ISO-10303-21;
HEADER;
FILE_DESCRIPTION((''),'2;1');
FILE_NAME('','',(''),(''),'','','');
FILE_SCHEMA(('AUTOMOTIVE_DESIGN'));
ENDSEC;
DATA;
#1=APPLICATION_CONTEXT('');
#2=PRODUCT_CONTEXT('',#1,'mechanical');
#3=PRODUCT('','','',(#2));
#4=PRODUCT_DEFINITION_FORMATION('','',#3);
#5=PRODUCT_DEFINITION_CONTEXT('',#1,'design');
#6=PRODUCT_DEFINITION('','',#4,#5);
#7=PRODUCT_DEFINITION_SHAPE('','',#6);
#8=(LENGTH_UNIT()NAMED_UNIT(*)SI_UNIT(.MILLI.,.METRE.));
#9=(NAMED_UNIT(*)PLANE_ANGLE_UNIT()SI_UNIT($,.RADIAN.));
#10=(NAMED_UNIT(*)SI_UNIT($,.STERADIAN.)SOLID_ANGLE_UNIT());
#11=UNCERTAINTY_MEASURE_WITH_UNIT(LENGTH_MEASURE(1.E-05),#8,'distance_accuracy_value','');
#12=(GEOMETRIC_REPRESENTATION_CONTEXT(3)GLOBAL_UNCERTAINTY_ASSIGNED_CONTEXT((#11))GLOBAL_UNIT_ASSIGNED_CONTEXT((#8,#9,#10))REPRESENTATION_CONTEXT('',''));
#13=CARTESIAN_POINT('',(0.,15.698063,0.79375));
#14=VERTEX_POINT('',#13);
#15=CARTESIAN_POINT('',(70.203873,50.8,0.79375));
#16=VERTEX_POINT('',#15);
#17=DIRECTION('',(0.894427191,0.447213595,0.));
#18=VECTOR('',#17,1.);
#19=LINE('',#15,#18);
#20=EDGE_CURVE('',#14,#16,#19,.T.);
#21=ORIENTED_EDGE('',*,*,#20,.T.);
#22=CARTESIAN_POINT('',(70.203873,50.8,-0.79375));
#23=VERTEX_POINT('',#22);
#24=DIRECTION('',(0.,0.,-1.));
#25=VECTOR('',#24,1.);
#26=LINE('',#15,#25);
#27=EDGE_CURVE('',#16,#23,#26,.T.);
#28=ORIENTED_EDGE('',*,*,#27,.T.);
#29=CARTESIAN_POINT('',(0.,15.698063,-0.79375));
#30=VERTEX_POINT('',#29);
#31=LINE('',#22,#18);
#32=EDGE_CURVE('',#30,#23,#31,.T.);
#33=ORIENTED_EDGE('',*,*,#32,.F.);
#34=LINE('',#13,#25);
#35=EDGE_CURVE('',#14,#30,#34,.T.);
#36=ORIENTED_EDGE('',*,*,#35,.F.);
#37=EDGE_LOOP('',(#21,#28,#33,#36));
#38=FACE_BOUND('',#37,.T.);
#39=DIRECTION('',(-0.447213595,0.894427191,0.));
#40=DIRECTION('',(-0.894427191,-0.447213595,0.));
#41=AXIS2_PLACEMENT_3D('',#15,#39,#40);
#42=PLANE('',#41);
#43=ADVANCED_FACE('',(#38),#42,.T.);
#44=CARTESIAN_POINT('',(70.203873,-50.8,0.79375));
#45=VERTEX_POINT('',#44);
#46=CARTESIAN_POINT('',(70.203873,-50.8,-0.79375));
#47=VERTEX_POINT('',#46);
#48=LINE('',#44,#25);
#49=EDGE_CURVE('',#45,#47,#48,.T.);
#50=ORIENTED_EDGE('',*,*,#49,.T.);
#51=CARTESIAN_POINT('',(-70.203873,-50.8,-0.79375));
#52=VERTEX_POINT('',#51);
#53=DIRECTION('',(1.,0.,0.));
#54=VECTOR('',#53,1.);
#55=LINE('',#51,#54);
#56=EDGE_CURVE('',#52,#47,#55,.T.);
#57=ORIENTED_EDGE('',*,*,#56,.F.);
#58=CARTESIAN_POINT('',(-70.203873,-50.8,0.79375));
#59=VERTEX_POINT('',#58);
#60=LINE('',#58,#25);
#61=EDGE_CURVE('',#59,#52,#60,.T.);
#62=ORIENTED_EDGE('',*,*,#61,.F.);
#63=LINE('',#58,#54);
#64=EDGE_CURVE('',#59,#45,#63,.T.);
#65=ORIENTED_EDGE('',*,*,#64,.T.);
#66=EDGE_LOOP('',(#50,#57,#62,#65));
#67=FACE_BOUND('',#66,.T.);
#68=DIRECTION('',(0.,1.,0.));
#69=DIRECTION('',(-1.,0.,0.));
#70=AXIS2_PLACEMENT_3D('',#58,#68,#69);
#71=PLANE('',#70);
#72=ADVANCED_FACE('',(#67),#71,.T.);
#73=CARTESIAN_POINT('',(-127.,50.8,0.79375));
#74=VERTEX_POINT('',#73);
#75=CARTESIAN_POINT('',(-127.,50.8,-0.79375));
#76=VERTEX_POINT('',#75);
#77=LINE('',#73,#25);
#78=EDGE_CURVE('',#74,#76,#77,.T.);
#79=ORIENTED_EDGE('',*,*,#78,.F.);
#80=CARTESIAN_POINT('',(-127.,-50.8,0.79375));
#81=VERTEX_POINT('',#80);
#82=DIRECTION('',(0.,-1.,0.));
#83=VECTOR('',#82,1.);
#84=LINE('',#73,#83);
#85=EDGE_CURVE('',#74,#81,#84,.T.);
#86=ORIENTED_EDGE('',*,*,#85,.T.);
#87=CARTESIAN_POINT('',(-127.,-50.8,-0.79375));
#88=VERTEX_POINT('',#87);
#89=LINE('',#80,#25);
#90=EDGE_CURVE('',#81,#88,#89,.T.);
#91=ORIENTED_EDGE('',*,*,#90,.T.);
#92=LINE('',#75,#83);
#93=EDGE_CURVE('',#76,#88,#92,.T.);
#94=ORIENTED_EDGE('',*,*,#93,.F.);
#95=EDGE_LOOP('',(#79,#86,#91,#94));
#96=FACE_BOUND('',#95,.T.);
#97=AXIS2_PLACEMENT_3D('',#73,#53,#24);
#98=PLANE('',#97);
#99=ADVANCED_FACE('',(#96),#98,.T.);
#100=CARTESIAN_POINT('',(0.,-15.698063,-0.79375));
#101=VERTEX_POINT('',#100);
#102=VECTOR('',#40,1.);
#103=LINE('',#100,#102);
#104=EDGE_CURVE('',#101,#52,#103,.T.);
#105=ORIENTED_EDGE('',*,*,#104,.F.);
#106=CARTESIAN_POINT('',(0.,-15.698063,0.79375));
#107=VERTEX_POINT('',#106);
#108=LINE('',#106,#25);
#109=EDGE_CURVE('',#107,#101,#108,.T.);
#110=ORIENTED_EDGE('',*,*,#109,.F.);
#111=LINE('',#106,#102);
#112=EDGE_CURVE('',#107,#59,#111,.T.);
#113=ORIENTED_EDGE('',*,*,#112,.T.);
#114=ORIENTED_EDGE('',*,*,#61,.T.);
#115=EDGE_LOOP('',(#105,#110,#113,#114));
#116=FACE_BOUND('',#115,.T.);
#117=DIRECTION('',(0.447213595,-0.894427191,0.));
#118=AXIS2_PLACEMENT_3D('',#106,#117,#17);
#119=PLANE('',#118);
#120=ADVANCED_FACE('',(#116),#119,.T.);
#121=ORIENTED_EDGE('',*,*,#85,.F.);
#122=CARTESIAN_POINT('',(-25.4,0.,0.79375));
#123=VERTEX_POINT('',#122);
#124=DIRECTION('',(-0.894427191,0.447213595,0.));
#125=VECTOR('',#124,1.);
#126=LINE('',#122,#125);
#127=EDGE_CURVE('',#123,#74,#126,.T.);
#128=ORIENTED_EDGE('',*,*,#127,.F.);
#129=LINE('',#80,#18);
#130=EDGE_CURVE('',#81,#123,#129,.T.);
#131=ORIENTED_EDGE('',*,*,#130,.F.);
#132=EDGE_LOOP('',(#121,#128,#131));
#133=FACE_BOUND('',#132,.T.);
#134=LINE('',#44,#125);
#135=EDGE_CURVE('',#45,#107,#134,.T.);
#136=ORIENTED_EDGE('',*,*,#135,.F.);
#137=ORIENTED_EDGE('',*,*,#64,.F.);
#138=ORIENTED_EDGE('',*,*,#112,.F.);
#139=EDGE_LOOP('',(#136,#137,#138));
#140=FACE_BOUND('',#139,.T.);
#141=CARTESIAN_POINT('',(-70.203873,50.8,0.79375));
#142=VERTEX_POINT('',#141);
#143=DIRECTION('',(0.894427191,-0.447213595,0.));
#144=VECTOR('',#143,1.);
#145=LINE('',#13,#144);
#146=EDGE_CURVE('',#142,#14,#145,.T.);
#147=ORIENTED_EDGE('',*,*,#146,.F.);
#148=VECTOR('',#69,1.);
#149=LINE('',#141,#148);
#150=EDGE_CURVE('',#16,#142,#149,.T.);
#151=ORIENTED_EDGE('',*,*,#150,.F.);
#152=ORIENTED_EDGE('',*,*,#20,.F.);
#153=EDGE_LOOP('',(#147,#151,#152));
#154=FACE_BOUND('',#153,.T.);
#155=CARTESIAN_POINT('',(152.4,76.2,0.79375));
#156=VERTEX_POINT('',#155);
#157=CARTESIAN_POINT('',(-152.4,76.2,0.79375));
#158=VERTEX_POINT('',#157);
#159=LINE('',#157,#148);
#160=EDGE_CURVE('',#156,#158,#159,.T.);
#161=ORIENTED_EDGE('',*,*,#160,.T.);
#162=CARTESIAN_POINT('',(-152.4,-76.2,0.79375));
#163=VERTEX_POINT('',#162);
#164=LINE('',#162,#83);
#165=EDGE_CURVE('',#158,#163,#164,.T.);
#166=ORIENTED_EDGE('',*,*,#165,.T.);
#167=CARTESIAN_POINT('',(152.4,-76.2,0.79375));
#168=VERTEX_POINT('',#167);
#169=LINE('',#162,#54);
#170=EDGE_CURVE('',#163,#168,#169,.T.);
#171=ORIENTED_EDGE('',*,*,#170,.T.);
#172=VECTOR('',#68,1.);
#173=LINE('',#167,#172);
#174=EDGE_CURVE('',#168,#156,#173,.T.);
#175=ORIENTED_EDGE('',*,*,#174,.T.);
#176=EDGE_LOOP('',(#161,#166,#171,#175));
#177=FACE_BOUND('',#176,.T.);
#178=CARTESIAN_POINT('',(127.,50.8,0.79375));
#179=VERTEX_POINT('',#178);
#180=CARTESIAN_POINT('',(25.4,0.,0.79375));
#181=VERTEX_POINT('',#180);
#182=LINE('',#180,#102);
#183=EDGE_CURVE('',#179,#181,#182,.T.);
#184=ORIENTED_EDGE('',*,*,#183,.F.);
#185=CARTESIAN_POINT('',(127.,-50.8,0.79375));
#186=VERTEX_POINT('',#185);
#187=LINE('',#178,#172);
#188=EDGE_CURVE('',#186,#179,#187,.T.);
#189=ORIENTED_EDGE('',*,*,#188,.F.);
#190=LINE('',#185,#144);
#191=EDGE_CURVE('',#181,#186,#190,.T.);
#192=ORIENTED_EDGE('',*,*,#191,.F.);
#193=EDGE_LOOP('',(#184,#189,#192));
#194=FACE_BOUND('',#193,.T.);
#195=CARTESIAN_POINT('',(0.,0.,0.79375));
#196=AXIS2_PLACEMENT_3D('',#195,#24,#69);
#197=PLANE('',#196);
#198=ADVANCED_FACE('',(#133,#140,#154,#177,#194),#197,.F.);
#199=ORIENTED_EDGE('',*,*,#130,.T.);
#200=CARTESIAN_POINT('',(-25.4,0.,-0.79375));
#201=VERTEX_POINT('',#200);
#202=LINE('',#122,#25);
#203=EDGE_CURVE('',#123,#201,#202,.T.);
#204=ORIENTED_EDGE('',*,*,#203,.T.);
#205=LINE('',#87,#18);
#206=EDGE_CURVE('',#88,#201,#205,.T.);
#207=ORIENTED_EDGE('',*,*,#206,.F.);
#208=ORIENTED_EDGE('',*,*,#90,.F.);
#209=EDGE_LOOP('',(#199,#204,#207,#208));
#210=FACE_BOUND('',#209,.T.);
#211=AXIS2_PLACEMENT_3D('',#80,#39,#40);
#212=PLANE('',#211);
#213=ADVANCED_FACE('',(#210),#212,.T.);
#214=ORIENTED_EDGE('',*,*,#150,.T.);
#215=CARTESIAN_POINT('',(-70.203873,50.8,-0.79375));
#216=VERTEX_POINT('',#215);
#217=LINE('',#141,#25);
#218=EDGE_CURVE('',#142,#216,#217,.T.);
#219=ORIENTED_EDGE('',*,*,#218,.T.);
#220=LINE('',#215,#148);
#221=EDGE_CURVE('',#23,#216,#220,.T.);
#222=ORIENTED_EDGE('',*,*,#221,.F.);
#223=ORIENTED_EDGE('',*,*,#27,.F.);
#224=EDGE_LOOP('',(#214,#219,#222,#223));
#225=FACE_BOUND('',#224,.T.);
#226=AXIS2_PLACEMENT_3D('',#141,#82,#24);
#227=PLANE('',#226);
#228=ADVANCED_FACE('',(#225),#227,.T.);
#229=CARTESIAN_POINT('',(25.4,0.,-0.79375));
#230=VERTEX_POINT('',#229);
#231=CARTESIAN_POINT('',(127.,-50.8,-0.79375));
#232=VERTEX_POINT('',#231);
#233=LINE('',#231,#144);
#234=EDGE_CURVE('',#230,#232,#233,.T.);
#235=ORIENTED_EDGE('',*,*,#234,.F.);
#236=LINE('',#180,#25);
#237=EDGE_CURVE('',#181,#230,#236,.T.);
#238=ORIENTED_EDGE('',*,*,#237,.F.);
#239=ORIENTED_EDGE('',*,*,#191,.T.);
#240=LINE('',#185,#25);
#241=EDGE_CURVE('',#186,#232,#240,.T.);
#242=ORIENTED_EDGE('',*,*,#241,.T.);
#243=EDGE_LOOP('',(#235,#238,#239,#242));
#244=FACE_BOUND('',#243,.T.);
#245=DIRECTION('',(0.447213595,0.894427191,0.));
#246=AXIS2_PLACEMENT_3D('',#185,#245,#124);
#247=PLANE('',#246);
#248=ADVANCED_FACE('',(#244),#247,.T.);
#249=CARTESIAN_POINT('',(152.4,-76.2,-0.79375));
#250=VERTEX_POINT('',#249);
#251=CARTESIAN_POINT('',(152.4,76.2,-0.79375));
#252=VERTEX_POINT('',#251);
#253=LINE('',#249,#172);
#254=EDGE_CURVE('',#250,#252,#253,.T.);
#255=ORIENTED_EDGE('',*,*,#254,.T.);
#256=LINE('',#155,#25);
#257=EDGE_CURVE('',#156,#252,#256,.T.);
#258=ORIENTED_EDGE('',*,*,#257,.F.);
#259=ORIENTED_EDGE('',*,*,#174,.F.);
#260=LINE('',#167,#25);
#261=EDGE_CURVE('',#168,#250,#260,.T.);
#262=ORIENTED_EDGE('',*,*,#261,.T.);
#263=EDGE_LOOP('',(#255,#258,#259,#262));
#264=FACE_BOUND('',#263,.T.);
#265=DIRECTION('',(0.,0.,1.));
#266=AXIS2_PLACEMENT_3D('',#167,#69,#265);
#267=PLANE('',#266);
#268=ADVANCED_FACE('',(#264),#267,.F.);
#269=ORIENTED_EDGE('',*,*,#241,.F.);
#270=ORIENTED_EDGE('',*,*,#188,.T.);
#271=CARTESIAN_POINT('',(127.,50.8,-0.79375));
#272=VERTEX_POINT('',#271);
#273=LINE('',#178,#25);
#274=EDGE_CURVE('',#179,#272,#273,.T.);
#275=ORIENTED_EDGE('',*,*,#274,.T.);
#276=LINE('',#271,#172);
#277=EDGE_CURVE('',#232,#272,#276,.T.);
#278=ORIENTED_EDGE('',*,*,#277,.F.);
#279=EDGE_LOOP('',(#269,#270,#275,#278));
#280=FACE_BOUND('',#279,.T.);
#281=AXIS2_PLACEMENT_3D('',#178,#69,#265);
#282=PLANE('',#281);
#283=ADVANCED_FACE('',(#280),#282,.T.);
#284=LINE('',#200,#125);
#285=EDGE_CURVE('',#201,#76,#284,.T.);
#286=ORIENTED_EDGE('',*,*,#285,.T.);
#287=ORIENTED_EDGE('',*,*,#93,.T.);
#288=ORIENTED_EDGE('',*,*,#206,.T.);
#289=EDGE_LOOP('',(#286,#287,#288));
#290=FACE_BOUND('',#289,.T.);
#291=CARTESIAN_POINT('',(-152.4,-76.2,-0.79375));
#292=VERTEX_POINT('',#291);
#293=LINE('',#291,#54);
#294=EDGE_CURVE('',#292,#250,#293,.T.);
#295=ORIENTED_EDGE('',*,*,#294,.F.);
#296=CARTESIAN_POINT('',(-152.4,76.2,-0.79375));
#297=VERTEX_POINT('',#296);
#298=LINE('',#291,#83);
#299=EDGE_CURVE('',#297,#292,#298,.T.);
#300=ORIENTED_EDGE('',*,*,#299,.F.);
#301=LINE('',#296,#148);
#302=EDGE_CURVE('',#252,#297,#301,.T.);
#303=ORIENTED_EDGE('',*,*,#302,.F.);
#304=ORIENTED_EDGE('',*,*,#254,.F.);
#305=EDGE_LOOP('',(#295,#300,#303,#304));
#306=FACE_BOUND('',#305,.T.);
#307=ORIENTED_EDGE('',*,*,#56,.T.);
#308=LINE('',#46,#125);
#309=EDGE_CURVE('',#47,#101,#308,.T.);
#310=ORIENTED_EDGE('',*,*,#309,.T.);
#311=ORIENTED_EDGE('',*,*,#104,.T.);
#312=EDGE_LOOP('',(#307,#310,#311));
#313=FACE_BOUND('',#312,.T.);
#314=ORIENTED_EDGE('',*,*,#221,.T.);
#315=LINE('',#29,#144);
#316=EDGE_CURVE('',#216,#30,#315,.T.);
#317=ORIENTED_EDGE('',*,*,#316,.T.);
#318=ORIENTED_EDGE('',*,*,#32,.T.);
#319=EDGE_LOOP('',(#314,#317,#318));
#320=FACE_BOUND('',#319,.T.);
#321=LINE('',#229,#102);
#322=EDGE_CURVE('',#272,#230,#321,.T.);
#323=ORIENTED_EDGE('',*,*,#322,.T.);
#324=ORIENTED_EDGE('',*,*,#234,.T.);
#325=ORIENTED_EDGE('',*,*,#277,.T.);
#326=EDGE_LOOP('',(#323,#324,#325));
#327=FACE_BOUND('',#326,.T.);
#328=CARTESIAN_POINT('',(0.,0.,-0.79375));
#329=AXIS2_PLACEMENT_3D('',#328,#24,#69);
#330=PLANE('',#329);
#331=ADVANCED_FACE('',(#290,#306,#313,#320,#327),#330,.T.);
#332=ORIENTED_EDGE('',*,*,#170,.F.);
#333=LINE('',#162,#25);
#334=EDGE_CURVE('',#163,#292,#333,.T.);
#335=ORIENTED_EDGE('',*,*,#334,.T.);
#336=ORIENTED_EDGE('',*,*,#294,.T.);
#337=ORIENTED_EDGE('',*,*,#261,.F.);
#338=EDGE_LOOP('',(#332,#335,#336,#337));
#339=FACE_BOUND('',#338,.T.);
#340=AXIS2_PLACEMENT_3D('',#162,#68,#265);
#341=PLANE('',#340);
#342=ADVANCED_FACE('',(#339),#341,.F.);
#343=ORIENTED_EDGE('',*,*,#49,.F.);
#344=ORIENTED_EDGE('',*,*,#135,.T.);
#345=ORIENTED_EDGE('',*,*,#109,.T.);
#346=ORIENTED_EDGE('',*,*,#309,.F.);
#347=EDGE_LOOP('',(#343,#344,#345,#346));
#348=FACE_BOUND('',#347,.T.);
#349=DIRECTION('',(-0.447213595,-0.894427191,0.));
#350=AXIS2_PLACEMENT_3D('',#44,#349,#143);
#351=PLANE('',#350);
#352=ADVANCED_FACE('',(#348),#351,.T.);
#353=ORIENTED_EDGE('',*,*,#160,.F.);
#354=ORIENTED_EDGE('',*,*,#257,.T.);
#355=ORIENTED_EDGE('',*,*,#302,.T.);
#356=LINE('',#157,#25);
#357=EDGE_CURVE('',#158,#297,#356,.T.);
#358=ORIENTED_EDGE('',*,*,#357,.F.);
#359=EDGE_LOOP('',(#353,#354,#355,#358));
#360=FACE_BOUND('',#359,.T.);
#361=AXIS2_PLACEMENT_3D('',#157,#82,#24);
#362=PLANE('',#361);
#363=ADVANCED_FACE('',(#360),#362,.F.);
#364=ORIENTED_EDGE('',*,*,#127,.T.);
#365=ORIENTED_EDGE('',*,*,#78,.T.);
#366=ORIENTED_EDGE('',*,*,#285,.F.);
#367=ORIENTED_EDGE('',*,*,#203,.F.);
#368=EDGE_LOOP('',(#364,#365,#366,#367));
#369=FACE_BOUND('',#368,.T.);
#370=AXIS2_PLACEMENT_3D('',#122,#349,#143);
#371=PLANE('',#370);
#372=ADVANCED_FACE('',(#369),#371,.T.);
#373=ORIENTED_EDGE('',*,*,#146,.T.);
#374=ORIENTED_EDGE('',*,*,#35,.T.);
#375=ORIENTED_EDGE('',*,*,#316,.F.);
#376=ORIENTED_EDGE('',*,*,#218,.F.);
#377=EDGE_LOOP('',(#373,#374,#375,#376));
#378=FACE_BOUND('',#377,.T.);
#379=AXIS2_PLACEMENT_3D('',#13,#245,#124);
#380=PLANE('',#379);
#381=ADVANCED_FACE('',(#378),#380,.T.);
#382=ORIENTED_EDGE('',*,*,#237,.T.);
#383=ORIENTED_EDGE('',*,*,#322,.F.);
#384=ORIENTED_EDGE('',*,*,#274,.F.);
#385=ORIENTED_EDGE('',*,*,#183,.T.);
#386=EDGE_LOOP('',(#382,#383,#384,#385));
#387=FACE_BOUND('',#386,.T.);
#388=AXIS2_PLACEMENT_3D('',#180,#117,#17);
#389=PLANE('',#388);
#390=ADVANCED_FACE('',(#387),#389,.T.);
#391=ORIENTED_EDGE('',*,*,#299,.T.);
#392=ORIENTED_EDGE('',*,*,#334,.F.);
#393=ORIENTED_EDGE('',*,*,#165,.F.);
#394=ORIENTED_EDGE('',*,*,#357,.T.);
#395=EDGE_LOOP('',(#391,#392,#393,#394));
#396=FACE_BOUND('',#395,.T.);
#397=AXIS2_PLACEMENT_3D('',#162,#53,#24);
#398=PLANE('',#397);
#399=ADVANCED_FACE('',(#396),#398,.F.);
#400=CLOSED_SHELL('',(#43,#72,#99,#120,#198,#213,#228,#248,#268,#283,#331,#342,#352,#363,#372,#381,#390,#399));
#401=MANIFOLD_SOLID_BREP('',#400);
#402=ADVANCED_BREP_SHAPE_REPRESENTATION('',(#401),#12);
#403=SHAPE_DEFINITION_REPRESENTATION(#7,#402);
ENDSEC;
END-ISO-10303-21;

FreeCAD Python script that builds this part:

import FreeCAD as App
import Part
import Sketcher
Q = App.Units.Quantity

doc = App.newDocument("Part")
body = doc.addObject("PartDesign::Body", "Body")

# Sketch on XY plane
sketch1 = doc.addObject("Sketcher::SketchObject", "Sketch")
body.addObject(sketch1)
sketch1.AttachmentSupport = (doc.XY_Plane, [""])
sketch1.MapMode = "FlatFace"
sketch1.addGeometry(Part.LineSegment(App.Vector(-152.4, 76.2, 0), App.Vector(-152.4, -76.2, 0)), False)
sketch1.addGeometry(Part.LineSegment(App.Vector(-152.4, -76.2, 0), App.Vector(152.4, -76.2, 0)), False)
sketch1.addGeometry(Part.LineSegment(App.Vector(152.4, -76.2, 0), App.Vector(152.4, 76.2, 0)), False)
sketch1.addGeometry(Part.LineSegment(App.Vector(152.4, 76.2, 0), App.Vector(-152.4, 76.2, 0)), False)
sketch1.addGeometry(Part.LineSegment(App.Vector(-127, -50.8, 0), App.Vector(-127, 50.8, 0)), False)
sketch1.addGeometry(Part.LineSegment(App.Vector(-127, 50.8, 0), App.Vector(-25.4, 0, 0)), False)
sketch1.addGeometry(Part.LineSegment(App.Vector(-25.4, 0, 0), App.Vector(-127, -50.8, 0)), False)
sketch1.addGeometry(Part.LineSegment(App.Vector(-70.203873, -50.8, 0), App.Vector(0, -15.698063, 0)), False)
sketch1.addGeometry(Part.LineSegment(App.Vector(0, -15.698063, 0), App.Vector(70.203873, -50.8, 0)), False)
sketch1.addGeometry(Part.LineSegment(App.Vector(70.203873, -50.8, 0), App.Vector(-70.203873, -50.8, 0)), False)
sketch1.addGeometry(Part.LineSegment(App.Vector(127, -50.8, 0), App.Vector(25.4, 0, 0)), False)
sketch1.addGeometry(Part.LineSegment(App.Vector(25.4, 0, 0), App.Vector(127, 50.8, 0)), False)
sketch1.addGeometry(Part.LineSegment(App.Vector(127, 50.8, 0), App.Vector(127, -50.8, 0)), False)
sketch1.addGeometry(Part.LineSegment(App.Vector(0, 15.698063, 0), App.Vector(-70.203873, 50.8, 0)), False)
sketch1.addGeometry(Part.LineSegment(App.Vector(-70.203873, 50.8, 0), App.Vector(70.203873, 50.8, 0)), False)
sketch1.addGeometry(Part.LineSegment(App.Vector(70.203873, 50.8, 0), App.Vector(0, 15.698063, 0)), False)
sketch1.addConstraint(Sketcher.Constraint("Coincident", 0, 2, 1, 1))
sketch1.addConstraint(Sketcher.Constraint("Coincident", 1, 2, 2, 1))
sketch1.addConstraint(Sketcher.Constraint("Coincident", 2, 2, 3, 1))
sketch1.addConstraint(Sketcher.Constraint("Coincident", 3, 2, 0, 1))
sketch1.addConstraint(Sketcher.Constraint("Coincident", 4, 2, 5, 1))
sketch1.addConstraint(Sketcher.Constraint("Coincident", 5, 2, 6, 1))
sketch1.addConstraint(Sketcher.Constraint("Coincident", 6, 2, 4, 1))
sketch1.addConstraint(Sketcher.Constraint("Coincident", 7, 2, 8, 1))
sketch1.addConstraint(Sketcher.Constraint("Coincident", 8, 2, 9, 1))
sketch1.addConstraint(Sketcher.Constraint("Coincident", 9, 2, 7, 1))
sketch1.addConstraint(Sketcher.Constraint("Coincident", 10, 2, 11, 1))
sketch1.addConstraint(Sketcher.Constraint("Coincident", 11, 2, 12, 1))
sketch1.addConstraint(Sketcher.Constraint("Coincident", 12, 2, 10, 1))
sketch1.addConstraint(Sketcher.Constraint("Coincident", 13, 2, 14, 1))
sketch1.addConstraint(Sketcher.Constraint("Coincident", 14, 2, 15, 1))
sketch1.addConstraint(Sketcher.Constraint("Coincident", 15, 2, 13, 1))
sketch1.addConstraint(Sketcher.Constraint("Vertical", 0))
sketch1.addConstraint(Sketcher.Constraint("Horizontal", 1))
sketch1.addConstraint(Sketcher.Constraint("Vertical", 2))
sketch1.addConstraint(Sketcher.Constraint("Horizontal", 3))
sketch1.addConstraint(Sketcher.Constraint("Vertical", 4))
sketch1.addConstraint(Sketcher.Constraint("Horizontal", 9))
sketch1.addConstraint(Sketcher.Constraint("Vertical", 12))
sketch1.addConstraint(Sketcher.Constraint("Horizontal", 14))
sketch1.addConstraint(Sketcher.Constraint("Symmetric", 0, 2, 2, 2, -1, 1))
sketch1.addConstraint(Sketcher.Constraint("Symmetric", 5, 2, 10, 2, -1, 1))
sketch1.addConstraint(Sketcher.Constraint("Symmetric", 6, 2, 11, 2, -1, 1))
sketch1.addConstraint(Sketcher.Constraint("Symmetric", 8, 2, 13, 2, -1, 1))
sketch1.addConstraint(Sketcher.Constraint("Symmetric", 7, 2, 15, 2, -1, 1))
sketch1.addConstraint(Sketcher.Constraint("PointOnObject", 5, 2, -1))
sketch1.addConstraint(Sketcher.Constraint("PointOnObject", 7, 2, -2))
sketch1.addConstraint(Sketcher.Constraint("Parallel", 6, 7))
sketch1.addConstraint(Sketcher.Constraint("Parallel", 5, 8))
sketch1.addConstraint(Sketcher.Constraint("Parallel", 8, 10))
sketch1.addConstraint(Sketcher.Constraint("Parallel", 11, 15))
sketch1.addConstraint(Sketcher.Constraint("Horizontal", 6, 2, 8, 2))
sketch1.addConstraint(Sketcher.Constraint("Horizontal", 4, 2, 11, 2))
sketch1.addConstraint(Sketcher.Constraint("DistanceX", 1, 1, 1, 2, Q("12 in")))
sketch1.addConstraint(Sketcher.Constraint("DistanceY", 0, 2, 0, 1, Q("6 in")))
sketch1.addConstraint(Sketcher.Constraint("DistanceY", 4, 1, 4, 2, Q("4 in")))
sketch1.addConstraint(Sketcher.Constraint("DistanceX", 4, 2, -1, 1, Q("5 in")))
sketch1.addConstraint(Sketcher.Constraint("DistanceX", 5, 2, -1, 1, Q("1 in")))
sketch1.addConstraint(Sketcher.Constraint("DistanceX", 9, 2, 9, 1, Q("140.407747 mm")))
pad1 = doc.addObject("PartDesign::Pad", "Pad")
body.addObject(pad1)
pad1.Profile = sketch1
pad1.Length = Q("0.0625 in")
pad1.Midplane = True

doc.recompute()
